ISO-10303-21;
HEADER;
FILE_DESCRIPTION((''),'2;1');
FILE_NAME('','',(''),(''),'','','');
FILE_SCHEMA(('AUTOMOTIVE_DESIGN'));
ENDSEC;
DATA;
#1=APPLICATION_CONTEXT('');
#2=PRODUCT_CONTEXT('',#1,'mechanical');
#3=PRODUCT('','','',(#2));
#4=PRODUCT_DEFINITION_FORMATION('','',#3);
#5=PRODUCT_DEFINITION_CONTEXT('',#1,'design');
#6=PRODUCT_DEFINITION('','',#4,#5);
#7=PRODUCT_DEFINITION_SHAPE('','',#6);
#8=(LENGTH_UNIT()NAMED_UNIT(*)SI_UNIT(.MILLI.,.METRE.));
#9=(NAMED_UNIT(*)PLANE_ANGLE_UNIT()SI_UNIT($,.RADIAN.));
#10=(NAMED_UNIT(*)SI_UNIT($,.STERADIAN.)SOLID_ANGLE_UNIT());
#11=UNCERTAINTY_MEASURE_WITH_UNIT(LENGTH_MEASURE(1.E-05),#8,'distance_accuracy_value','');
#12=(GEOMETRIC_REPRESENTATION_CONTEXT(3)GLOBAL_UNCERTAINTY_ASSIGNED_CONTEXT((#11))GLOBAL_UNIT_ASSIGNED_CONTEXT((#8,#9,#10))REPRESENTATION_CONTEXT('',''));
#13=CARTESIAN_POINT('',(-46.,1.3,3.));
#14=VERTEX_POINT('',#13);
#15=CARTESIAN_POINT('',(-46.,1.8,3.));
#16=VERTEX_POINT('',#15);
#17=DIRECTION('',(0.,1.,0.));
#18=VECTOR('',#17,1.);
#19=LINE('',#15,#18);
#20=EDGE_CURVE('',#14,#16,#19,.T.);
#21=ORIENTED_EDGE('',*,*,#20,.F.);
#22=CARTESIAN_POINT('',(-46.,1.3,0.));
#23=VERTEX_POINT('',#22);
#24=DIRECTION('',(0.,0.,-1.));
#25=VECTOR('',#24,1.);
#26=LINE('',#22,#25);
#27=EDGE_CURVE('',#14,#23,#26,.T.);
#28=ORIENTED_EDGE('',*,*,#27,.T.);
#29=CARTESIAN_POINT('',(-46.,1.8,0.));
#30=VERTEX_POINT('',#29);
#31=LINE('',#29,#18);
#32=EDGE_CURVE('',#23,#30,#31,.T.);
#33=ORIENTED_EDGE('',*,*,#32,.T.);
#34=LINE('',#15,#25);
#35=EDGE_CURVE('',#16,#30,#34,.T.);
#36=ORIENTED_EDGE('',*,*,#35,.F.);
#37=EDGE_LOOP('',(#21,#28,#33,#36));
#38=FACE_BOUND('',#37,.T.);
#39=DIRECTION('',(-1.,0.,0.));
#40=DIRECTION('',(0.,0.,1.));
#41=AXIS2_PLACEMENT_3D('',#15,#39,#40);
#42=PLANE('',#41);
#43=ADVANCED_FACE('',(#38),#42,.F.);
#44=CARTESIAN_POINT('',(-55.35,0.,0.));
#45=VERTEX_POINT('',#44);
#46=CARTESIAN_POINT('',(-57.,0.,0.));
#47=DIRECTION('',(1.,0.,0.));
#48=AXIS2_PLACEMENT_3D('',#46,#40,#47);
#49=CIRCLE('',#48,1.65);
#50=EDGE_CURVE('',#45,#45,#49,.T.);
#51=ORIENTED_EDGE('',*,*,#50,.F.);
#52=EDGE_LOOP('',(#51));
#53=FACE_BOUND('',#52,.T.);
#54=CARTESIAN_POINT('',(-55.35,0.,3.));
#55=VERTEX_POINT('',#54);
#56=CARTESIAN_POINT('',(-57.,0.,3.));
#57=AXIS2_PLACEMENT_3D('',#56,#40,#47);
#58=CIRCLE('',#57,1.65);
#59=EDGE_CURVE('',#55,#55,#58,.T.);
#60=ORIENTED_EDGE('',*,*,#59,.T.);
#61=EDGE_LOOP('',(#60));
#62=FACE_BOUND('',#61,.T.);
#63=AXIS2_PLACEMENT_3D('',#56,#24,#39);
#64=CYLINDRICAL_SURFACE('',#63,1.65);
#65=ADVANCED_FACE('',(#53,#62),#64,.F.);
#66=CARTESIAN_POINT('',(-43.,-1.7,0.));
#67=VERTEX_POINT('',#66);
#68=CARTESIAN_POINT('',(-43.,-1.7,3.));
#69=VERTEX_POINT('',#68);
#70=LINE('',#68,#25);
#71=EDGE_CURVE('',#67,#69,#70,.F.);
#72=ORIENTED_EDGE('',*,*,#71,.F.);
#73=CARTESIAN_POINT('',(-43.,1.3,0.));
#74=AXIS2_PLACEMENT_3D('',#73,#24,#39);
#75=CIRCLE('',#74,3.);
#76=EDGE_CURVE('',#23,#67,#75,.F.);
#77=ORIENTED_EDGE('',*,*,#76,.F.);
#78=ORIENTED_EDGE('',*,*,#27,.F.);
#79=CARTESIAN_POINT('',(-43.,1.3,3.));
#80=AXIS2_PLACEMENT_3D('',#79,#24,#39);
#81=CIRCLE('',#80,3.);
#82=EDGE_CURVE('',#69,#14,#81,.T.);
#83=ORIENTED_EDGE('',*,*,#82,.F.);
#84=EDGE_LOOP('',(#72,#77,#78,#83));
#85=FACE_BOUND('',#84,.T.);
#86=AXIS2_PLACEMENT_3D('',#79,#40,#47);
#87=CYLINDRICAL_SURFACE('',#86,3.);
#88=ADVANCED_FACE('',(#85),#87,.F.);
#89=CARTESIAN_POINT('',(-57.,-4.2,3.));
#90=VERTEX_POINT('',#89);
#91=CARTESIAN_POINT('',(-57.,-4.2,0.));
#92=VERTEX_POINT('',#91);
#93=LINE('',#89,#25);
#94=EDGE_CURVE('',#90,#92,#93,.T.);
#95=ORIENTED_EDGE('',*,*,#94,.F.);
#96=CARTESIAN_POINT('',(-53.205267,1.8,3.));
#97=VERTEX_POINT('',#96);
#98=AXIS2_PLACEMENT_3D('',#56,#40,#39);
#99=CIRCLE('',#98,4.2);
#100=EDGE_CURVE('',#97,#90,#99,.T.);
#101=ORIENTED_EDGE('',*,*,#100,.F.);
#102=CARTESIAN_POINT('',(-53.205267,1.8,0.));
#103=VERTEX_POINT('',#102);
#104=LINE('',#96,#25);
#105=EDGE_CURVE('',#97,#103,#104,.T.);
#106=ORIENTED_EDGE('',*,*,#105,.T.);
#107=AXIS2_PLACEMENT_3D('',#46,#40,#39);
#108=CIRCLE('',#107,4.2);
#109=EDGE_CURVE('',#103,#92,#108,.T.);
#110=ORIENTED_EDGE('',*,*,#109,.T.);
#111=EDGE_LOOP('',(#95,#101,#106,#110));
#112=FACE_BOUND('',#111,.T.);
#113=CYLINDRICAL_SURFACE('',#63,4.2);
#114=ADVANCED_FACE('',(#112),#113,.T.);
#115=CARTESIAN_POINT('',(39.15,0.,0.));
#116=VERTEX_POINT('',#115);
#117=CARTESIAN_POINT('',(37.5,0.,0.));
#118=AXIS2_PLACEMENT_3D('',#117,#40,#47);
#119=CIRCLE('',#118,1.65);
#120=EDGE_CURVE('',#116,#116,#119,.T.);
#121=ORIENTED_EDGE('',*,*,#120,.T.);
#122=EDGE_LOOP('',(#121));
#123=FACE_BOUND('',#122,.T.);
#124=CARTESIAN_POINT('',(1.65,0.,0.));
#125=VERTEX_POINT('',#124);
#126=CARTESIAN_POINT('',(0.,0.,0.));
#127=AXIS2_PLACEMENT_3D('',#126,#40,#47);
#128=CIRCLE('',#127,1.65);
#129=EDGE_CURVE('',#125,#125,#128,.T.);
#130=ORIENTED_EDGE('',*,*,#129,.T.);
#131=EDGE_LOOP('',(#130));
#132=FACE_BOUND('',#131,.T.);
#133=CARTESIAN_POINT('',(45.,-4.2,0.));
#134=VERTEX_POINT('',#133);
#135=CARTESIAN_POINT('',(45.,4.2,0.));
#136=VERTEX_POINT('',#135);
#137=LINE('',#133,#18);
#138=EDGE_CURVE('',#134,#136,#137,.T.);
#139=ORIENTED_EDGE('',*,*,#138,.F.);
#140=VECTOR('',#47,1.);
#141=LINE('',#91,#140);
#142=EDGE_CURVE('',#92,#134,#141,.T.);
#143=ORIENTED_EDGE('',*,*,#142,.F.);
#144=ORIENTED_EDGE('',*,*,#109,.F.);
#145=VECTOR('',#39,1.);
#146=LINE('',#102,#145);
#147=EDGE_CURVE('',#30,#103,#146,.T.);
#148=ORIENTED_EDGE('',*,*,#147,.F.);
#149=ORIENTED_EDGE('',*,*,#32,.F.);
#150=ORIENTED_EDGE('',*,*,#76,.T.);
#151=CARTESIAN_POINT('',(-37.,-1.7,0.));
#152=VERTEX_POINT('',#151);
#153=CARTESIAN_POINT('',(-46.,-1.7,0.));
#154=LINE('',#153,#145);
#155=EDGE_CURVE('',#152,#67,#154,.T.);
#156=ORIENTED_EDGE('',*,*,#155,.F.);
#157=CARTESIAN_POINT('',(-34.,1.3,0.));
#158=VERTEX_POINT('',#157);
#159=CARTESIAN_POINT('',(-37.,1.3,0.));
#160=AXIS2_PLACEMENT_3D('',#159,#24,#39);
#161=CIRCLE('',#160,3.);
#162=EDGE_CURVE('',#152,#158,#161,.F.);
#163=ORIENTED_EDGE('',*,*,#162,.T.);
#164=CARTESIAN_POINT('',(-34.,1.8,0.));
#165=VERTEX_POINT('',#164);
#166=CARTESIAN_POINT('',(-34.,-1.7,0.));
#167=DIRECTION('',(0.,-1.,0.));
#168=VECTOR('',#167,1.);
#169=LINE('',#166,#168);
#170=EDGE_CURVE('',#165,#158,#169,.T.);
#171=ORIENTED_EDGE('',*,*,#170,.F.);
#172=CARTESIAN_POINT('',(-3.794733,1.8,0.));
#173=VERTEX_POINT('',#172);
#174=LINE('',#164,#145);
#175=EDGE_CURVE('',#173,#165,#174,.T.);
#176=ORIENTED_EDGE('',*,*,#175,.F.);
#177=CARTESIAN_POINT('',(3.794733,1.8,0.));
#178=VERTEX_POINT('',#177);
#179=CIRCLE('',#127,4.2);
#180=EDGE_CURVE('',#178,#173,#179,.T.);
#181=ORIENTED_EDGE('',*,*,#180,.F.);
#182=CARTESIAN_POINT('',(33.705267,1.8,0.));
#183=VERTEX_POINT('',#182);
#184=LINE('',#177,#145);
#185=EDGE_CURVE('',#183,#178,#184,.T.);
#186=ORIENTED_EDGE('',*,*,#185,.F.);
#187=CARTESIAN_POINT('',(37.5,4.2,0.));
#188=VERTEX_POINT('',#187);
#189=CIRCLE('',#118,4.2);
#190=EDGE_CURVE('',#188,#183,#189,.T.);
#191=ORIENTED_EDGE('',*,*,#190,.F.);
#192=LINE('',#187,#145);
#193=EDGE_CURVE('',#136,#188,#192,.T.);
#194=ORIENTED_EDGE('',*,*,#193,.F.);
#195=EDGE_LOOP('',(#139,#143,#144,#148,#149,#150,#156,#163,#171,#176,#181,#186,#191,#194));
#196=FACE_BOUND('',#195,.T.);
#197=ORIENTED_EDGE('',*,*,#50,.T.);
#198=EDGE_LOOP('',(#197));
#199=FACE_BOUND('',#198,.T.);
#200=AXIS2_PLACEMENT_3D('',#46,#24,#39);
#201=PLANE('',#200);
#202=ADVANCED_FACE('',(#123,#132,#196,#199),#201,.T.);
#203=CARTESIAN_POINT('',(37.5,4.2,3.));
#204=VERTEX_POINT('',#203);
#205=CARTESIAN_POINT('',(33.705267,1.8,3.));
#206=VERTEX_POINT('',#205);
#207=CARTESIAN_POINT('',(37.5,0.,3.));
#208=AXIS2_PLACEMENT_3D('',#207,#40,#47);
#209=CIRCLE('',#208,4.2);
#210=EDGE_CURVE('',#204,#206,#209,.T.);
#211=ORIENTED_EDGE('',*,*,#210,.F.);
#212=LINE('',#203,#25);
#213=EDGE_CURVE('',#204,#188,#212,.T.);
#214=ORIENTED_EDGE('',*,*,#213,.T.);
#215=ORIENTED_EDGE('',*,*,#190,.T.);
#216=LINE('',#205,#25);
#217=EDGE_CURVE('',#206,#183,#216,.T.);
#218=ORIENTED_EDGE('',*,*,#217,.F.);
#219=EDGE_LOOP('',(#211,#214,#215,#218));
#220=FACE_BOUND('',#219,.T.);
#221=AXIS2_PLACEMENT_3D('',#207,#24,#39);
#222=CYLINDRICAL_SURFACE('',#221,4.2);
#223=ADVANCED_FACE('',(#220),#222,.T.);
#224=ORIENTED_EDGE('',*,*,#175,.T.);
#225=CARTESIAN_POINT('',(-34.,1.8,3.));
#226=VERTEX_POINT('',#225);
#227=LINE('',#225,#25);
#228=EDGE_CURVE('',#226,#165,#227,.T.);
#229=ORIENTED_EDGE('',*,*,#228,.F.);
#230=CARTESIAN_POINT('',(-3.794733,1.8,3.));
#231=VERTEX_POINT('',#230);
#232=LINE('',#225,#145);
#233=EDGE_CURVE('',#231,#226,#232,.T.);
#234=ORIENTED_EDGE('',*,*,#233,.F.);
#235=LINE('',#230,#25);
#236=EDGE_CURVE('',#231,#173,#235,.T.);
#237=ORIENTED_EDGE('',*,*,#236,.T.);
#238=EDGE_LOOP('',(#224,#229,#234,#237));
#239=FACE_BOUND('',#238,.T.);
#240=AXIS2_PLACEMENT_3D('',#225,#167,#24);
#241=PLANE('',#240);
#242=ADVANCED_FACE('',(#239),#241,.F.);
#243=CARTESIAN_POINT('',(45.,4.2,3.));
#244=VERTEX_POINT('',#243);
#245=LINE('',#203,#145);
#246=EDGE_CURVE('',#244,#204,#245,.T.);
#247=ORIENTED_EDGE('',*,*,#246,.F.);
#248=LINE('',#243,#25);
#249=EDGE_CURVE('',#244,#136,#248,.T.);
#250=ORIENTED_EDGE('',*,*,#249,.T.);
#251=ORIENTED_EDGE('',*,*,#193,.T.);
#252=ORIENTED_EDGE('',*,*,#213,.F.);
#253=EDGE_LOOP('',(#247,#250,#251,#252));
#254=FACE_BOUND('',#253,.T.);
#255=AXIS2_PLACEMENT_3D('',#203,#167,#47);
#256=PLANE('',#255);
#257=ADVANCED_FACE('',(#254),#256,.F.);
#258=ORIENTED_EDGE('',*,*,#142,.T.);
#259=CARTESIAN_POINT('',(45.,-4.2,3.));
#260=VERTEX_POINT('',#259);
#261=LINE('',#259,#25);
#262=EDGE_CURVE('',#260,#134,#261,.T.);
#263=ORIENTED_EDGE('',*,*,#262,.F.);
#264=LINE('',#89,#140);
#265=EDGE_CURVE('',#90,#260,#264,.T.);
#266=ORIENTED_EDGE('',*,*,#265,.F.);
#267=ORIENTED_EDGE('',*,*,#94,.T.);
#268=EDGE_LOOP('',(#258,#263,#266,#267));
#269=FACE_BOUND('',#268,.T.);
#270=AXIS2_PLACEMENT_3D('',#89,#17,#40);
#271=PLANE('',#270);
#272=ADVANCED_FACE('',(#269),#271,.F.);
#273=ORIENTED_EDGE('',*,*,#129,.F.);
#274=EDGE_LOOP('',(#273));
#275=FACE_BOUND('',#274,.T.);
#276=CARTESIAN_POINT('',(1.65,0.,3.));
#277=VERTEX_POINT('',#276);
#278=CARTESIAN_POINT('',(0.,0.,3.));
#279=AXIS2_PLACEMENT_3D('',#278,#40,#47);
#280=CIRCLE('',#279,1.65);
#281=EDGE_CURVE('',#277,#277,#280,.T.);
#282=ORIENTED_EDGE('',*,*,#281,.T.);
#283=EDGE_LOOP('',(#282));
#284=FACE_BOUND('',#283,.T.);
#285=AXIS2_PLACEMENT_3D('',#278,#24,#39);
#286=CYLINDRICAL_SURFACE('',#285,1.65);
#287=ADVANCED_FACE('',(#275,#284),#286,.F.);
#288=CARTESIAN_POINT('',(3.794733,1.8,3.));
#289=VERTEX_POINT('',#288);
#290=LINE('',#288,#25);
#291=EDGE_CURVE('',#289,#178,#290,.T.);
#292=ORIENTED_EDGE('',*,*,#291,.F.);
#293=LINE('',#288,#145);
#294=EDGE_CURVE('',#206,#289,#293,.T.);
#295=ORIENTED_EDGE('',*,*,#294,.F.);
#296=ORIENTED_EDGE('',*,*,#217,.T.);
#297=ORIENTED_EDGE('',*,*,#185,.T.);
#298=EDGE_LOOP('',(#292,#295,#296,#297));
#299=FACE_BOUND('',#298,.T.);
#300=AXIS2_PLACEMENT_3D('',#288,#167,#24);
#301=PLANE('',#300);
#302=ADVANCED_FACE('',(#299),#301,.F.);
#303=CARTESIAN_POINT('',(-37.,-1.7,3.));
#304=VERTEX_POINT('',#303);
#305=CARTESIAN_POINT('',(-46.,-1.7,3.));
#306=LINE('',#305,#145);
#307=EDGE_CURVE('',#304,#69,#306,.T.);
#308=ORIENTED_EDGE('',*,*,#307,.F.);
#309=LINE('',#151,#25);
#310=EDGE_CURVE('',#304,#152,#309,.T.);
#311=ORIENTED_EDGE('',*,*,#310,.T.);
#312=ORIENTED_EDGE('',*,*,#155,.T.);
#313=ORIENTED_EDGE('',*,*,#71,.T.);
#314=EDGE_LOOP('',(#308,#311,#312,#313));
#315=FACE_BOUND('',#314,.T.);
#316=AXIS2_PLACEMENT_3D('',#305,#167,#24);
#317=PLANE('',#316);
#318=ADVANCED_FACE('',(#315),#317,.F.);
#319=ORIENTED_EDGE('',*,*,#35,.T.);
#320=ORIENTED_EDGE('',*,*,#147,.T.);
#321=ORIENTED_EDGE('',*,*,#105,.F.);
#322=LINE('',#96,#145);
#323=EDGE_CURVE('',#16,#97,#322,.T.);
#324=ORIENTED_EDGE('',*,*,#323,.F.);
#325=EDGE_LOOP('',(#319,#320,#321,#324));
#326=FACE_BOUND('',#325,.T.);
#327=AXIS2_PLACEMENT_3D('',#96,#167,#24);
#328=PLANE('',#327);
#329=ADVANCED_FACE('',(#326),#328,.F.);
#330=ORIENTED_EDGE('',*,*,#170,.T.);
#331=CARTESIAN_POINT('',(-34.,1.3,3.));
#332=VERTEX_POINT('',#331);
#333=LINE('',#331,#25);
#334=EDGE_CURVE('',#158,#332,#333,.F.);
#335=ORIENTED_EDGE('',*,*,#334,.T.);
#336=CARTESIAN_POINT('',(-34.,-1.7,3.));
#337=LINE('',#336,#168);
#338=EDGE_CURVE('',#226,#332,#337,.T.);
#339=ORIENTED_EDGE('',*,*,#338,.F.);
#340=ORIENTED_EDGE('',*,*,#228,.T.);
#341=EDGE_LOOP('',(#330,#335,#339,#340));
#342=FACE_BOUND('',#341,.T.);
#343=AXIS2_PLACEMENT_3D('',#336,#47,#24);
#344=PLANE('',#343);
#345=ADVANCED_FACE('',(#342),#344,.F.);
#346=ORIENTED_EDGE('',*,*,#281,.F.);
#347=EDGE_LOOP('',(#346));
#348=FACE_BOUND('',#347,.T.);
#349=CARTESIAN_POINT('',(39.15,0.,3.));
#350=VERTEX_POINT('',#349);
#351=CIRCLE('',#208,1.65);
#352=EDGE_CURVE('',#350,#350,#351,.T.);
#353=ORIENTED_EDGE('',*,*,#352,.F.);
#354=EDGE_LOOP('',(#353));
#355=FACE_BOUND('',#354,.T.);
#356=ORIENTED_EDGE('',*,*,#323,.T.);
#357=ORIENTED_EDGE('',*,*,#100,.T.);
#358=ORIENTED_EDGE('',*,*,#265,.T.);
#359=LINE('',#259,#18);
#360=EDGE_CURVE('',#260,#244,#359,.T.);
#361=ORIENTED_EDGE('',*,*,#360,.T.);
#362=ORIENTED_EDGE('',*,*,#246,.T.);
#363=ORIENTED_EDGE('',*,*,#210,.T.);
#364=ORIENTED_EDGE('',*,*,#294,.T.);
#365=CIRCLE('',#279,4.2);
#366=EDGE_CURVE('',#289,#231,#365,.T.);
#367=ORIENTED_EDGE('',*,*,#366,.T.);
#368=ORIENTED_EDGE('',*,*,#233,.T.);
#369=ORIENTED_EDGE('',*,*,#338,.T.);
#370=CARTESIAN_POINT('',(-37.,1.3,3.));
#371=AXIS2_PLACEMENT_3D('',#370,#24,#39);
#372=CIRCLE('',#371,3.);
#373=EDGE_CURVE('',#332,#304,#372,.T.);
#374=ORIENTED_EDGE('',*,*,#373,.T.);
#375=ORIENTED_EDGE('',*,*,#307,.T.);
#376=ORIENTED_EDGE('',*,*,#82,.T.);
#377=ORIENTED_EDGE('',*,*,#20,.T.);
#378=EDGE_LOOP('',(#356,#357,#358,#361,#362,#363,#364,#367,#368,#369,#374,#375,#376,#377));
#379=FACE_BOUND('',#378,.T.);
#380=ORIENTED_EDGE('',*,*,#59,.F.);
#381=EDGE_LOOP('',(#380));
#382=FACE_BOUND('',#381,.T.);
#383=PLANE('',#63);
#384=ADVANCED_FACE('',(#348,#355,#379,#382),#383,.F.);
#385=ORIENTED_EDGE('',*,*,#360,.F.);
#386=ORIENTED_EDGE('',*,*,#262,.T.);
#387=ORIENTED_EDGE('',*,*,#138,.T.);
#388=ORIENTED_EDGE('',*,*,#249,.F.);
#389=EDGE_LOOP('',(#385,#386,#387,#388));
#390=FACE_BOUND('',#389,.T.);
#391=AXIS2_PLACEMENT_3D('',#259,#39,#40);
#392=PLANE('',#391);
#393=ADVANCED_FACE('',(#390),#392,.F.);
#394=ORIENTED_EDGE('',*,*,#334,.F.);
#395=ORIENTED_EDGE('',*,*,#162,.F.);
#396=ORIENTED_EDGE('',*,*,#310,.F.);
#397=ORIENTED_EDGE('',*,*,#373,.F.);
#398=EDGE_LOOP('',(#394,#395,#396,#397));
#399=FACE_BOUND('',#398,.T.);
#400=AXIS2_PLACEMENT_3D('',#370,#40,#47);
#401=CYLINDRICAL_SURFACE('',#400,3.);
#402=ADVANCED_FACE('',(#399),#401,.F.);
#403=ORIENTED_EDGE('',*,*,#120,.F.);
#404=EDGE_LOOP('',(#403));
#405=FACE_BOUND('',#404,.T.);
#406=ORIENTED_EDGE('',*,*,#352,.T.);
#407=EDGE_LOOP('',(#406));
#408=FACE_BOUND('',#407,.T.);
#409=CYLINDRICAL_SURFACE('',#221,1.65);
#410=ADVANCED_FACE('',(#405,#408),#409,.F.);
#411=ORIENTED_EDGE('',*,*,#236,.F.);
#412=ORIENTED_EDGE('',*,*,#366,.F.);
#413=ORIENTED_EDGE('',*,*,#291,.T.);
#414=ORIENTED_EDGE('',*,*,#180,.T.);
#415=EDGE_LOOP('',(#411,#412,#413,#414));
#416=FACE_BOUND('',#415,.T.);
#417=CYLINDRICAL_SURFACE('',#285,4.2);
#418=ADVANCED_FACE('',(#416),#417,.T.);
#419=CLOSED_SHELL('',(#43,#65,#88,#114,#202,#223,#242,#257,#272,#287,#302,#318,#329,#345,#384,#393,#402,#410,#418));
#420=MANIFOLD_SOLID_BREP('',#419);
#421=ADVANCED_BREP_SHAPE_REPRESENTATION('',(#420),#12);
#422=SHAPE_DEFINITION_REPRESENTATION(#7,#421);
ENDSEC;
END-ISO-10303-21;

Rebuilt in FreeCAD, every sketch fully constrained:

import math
import FreeCAD as App
import Part
import Sketcher

V = App.Vector
Q = App.Units.Quantity


def edges_at(feature, points):
    """Names of the edges that pass closest to the given points."""
    edges = feature.Shape.Edges
    near = lambda p: min(range(len(edges)), key=lambda i: edges[i].distToShape(Part.Vertex(*p))[0])
    return sorted({f"Edge{near(p) + 1}" for p in points})

doc = App.newDocument("Part")
body = doc.addObject("PartDesign::Body", "Body")

# Sketch on XY plane
sketch1 = doc.addObject("Sketcher::SketchObject", "Sketch")
body.addObject(sketch1)
sketch1.AttachmentSupport = (doc.XY_Plane, [""])
sketch1.MapMode = "FlatFace"
sketch1.addGeometry(Part.LineSegment(V(-46, 1.8, 0), V(-53.205267, 1.8, 0)), False)
sketch1.addGeometry(Part.ArcOfCircle(Part.Circle(V(-57, 0, 0), V(0, 0, 1), 4.2), math.radians(25.376934), math.radians(270)), False)
sketch1.addGeometry(Part.LineSegment(V(-57, -4.2, 0), V(45, -4.2, 0)), False)
sketch1.addGeometry(Part.LineSegment(V(45, -4.2, 0), V(45, 4.2, 0)), False)
sketch1.addGeometry(Part.LineSegment(V(45, 4.2, 0), V(37.5, 4.2, 0)), False)
sketch1.addGeometry(Part.ArcOfCircle(Part.Circle(V(37.5, 0, 0), V(0, 0, 1), 4.2), math.radians(90), math.radians(154.623066)), False)
sketch1.addGeometry(Part.LineSegment(V(33.705267, 1.8, 0), V(3.794733, 1.8, 0)), False)
sketch1.addGeometry(Part.ArcOfCircle(Part.Circle(V(0, 0, 0), V(0, 0, 1), 4.2), math.radians(25.376934), math.radians(154.623066)), False)
sketch1.addGeometry(Part.LineSegment(V(-3.794733, 1.8, 0), V(-34, 1.8, 0)), False)
sketch1.addGeometry(Part.LineSegment(V(-34, 1.8, 0), V(-34, -1.7, 0)), False)
sketch1.addGeometry(Part.LineSegment(V(-34, -1.7, 0), V(-46, -1.7, 0)), False)
sketch1.addGeometry(Part.LineSegment(V(-46, -1.7, 0), V(-46, 1.8, 0)), False)
sketch1.addGeometry(Part.Circle(V(0, 0, 0), V(0, 0, 1), 1.65), False)
sketch1.addGeometry(Part.Circle(V(37.5, 0, 0), V(0, 0, 1), 1.65), False)
sketch1.addGeometry(Part.Circle(V(-57, 0, 0), V(0, 0, 1), 1.65), False)
sketch1.addConstraint(Sketcher.Constraint("Coincident", 0, 2, 1, 1))
sketch1.addConstraint(Sketcher.Constraint("Tangent", 1, 2, 2, 1))
sketch1.addConstraint(Sketcher.Constraint("Coincident", 2, 2, 3, 1))
sketch1.addConstraint(Sketcher.Constraint("Coincident", 3, 2, 4, 1))
sketch1.addConstraint(Sketcher.Constraint("Tangent", 4, 2, 5, 1))
sketch1.addConstraint(Sketcher.Constraint("Coincident", 5, 2, 6, 1))
sketch1.addConstraint(Sketcher.Constraint("Coincident", 6, 2, 7, 1))
sketch1.addConstraint(Sketcher.Constraint("Coincident", 7, 2, 8, 1))
sketch1.addConstraint(Sketcher.Constraint("Coincident", 8, 2, 9, 1))
sketch1.addConstraint(Sketcher.Constraint("Coincident", 9, 2, 10, 1))
sketch1.addConstraint(Sketcher.Constraint("Coincident", 10, 2, 11, 1))
sketch1.addConstraint(Sketcher.Constraint("Coincident", 11, 2, 0, 1))
sketch1.addConstraint(Sketcher.Constraint("Horizontal", 0))
sketch1.addConstraint(Sketcher.Constraint("Horizontal", 2))
sketch1.addConstraint(Sketcher.Constraint("Vertical", 3))
sketch1.addConstraint(Sketcher.Constraint("Horizontal", 4))
sketch1.addConstraint(Sketcher.Constraint("Horizontal", 6))
sketch1.addConstraint(Sketcher.Constraint("Horizontal", 8))
sketch1.addConstraint(Sketcher.Constraint("Vertical", 9))
sketch1.addConstraint(Sketcher.Constraint("Horizontal", 10))
sketch1.addConstraint(Sketcher.Constraint("Vertical", 11))
sketch1.addConstraint(Sketcher.Constraint("Coincident", 7, 3, -1, 1))
sketch1.addConstraint(Sketcher.Constraint("Coincident", 12, 3, -1, 1))
sketch1.addConstraint(Sketcher.Constraint("Coincident", 13, 3, 5, 3))
sketch1.addConstraint(Sketcher.Constraint("Coincident", 14, 3, 1, 3))
sketch1.addConstraint(Sketcher.Constraint("Equal", 1, 5))
sketch1.addConstraint(Sketcher.Constraint("Equal", 5, 7))
sketch1.addConstraint(Sketcher.Constraint("Equal", 12, 13))
sketch1.addConstraint(Sketcher.Constraint("Equal", 13, 14))
sketch1.addConstraint(Sketcher.Constraint("PointOnObject", 1, 3, -1))
sketch1.addConstraint(Sketcher.Constraint("PointOnObject", 5, 3, -1))
sketch1.addConstraint(Sketcher.Constraint("Horizontal", 0, 2, 5, 2))
sketch1.addConstraint(Sketcher.Constraint("Horizontal", 6, 2, 7, 2))
sketch1.addConstraint(Sketcher.Constraint("Diameter", 12, Q("3.3 mm")))
sketch1.addConstraint(Sketcher.Constraint("Radius", 1, Q("4.2 mm")))
sketch1.addConstraint(Sketcher.Constraint("DistanceX", 2, 1, 2, 2, Q("102 mm")))
sketch1.addConstraint(Sketcher.Constraint("DistanceX", 10, 2, 10, 1, Q("12 mm")))
sketch1.addConstraint(Sketcher.Constraint("DistanceX", 4, 2, 4, 1, Q("7.5 mm")))
sketch1.addConstraint(Sketcher.Constraint("DistanceY", 9, 2, 9, 1, Q("3.5 mm")))
sketch1.addConstraint(Sketcher.Constraint("DistanceX", 1, 3, -1, 1, Q("57 mm")))
sketch1.addConstraint(Sketcher.Constraint("DistanceX", 8, 2, -1, 1, Q("34 mm")))
sketch1.addConstraint(Sketcher.Constraint("DistanceY", 1, 2, 0, 2, Q("6 mm")))
pad1 = doc.addObject("PartDesign::Pad", "Pad")
body.addObject(pad1)
pad1.Profile = sketch1
pad1.Length = 3
doc.recompute()

fillet = doc.addObject("PartDesign::Fillet", "Fillet")
body.addObject(fillet)
fillet.Base = (pad1, edges_at(pad1, [(-46, -1.7, 1.5), (-34, -1.7, 1.5)]))
fillet.Radius = 3

doc.recompute()
